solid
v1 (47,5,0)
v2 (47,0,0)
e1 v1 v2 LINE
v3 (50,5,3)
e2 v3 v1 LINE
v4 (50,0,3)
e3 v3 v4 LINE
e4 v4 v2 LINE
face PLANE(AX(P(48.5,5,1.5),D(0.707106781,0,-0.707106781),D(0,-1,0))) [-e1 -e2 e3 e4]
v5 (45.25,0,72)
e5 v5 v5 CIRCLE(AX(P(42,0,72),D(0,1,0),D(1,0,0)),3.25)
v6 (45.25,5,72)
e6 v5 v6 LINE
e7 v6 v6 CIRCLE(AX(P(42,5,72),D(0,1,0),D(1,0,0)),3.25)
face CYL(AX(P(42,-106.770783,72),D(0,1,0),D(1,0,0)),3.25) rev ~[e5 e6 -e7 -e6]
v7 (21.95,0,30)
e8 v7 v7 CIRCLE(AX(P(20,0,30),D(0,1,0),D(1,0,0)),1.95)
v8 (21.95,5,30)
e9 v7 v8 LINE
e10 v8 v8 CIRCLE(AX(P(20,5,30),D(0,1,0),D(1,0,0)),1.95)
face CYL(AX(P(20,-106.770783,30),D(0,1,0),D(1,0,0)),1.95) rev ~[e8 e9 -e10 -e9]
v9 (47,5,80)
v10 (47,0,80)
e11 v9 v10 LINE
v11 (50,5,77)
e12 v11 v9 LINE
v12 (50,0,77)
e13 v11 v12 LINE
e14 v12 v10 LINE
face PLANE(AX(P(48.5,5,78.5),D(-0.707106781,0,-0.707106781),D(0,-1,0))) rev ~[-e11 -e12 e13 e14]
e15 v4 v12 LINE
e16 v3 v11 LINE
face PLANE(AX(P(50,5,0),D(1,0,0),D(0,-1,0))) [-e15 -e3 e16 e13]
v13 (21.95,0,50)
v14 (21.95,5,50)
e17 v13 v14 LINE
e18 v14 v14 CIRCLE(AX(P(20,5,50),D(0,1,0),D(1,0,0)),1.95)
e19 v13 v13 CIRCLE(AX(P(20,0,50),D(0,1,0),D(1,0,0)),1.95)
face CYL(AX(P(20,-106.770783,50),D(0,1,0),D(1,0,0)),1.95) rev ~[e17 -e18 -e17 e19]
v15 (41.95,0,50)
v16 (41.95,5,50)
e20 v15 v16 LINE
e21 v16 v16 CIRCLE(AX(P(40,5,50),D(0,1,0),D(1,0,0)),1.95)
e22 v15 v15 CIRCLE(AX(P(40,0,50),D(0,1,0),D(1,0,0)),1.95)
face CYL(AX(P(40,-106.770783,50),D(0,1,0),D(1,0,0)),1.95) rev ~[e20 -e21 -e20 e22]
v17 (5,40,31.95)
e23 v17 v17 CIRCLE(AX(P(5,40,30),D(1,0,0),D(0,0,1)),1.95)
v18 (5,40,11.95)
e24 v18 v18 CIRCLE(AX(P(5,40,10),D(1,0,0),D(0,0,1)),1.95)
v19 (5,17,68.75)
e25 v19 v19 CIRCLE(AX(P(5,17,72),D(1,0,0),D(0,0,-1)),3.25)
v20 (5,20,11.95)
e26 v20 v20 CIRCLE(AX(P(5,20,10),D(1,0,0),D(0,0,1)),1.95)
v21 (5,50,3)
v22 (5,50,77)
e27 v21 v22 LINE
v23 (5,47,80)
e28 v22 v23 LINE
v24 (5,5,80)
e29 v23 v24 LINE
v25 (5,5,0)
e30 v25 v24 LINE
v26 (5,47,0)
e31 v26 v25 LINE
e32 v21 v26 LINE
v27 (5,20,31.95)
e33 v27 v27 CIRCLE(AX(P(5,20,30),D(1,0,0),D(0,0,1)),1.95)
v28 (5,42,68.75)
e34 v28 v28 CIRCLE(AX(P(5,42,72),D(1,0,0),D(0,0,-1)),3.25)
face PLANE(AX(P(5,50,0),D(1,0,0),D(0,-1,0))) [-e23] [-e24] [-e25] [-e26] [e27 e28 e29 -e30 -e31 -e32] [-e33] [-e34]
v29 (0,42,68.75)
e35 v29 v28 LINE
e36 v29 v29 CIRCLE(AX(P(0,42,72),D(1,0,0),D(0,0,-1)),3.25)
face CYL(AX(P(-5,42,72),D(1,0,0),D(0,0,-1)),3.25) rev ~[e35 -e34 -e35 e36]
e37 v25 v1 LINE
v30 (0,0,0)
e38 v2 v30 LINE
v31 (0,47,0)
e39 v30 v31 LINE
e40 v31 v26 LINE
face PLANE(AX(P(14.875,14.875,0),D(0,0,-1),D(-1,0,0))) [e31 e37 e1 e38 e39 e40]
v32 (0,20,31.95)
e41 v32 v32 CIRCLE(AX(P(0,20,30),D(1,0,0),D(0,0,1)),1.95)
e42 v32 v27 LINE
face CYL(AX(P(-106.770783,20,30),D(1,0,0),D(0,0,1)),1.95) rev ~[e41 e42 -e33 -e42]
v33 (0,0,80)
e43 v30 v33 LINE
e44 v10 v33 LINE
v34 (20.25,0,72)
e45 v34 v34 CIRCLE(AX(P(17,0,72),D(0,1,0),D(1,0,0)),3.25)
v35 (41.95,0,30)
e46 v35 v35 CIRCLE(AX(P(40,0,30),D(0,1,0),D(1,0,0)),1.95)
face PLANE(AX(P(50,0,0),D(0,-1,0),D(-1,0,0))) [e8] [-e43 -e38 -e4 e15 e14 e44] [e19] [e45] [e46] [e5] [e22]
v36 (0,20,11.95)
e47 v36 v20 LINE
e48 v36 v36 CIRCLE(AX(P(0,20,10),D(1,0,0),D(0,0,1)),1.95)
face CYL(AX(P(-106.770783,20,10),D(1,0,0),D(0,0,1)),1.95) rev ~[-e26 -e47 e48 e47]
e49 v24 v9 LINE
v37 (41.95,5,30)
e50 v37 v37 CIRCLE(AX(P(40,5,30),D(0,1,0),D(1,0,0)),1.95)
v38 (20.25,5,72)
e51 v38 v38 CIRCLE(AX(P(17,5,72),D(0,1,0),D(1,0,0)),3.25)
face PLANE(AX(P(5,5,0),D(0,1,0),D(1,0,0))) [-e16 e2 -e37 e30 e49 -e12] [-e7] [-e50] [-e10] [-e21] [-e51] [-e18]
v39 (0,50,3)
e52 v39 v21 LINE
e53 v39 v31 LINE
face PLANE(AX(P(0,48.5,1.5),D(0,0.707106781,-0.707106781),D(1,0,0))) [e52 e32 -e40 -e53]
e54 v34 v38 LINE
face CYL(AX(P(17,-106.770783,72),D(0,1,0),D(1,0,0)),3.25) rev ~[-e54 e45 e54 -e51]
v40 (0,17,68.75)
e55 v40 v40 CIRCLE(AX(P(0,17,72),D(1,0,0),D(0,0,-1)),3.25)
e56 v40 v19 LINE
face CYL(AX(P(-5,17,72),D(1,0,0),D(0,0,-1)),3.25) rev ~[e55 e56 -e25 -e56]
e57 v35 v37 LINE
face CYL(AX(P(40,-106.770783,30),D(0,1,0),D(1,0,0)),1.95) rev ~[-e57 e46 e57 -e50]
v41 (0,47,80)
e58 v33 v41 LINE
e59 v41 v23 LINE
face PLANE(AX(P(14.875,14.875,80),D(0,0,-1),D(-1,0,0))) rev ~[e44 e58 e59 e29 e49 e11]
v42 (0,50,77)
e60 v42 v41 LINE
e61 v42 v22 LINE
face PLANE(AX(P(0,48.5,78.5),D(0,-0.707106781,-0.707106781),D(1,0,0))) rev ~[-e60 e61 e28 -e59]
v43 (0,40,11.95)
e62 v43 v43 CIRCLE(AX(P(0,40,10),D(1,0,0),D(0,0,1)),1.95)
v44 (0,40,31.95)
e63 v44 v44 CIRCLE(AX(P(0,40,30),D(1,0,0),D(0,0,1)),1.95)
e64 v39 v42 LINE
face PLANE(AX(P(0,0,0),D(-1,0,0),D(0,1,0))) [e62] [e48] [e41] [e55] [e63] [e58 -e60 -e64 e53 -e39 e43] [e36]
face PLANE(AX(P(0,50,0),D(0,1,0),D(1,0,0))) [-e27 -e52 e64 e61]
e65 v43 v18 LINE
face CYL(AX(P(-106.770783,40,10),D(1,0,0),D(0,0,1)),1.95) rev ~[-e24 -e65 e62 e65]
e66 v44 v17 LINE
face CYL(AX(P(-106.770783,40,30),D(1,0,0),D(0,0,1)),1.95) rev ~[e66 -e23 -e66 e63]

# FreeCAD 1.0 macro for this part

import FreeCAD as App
import Part
import Sketcher


def edges_at(feature, points):
    """Names of the edges that pass closest to the given points."""
    edges = feature.Shape.Edges
    near = lambda p: min(range(len(edges)), key=lambda i: edges[i].distToShape(Part.Vertex(*p))[0])
    return sorted({f"Edge{near(p) + 1}" for p in points})


def add_polygon(sketch, points):
    """Adds a closed chain of lines whose ends are joined by coincident constraints."""
    first, n = sketch.GeometryCount, len(points)
    for a, b in zip(points, points[1:] + points[:1]):
        sketch.addGeometry(Part.LineSegment(App.Vector(*a, 0), App.Vector(*b, 0)), False)
    for i in range(n):
        sketch.addConstraint(Sketcher.Constraint("Coincident", first + i, 2, first + (i + 1) % n, 1))

doc = App.newDocument("Part")
body = doc.addObject("PartDesign::Body", "Body")

# Sketch on XY plane
sketch1 = doc.addObject("Sketcher::SketchObject", "Sketch")
body.addObject(sketch1)
sketch1.AttachmentSupport = (doc.XY_Plane, [""])
sketch1.MapMode = "FlatFace"
add_polygon(sketch1, [(0, 50), (0, 0), (50, 0), (50, 5), (5, 5), (5, 50)])  # lines 0-5
sketch1.addConstraint([
    Sketcher.Constraint("Vertical", 0),
    Sketcher.Constraint("Horizontal", 1),
    Sketcher.Constraint("Vertical", 2),
    Sketcher.Constraint("Horizontal", 3),
    Sketcher.Constraint("Vertical", 4),
    Sketcher.Constraint("Horizontal", 5),
    Sketcher.Constraint("Coincident", 0, 2, -1, 1),
    Sketcher.Constraint("Equal", 1, 0),
    Sketcher.Constraint("Equal", 5, 2),
    Sketcher.Constraint("DistanceX", 1, 1, 1, 2, 50.0),
    Sketcher.Constraint("DistanceX", 3, 2, 3, 1, 45.0),
])
pad1 = doc.addObject("PartDesign::Pad", "Pad")
body.addObject(pad1)
pad1.Profile = sketch1
pad1.Length = 80

# Sketch on XZ plane
sketch2 = doc.addObject("Sketcher::SketchObject", "Sketch001")
body.addObject(sketch2)
sketch2.AttachmentSupport = (doc.XZ_Plane, [""])
sketch2.MapMode = "FlatFace"
sketch2.addGeometry([
    Part.Circle(App.Vector(17, 72, 0), App.Vector(0, 0, 1), 3.25),
    Part.Circle(App.Vector(42, 72, 0), App.Vector(0, 0, 1), 3.25),
], False)
sketch2.addConstraint([
    Sketcher.Constraint("Equal", 0, 1),
    Sketcher.Constraint("Horizontal", 0, 3, 1, 3),
    Sketcher.Constraint("Diameter", 0, 6.5),
    Sketcher.Constraint("DistanceX", -1, 1, 0, 3, 17.0),
    Sketcher.Constraint("DistanceY", -1, 1, 0, 3, 72.0),
    Sketcher.Constraint("DistanceX", -1, 1, 1, 3, 42.0),
])
doc.recompute()
hole = doc.addObject("PartDesign::Hole", "Hole")
body.addObject(hole)
hole.Profile = sketch2
hole.ThreadType = "None"
hole.Diameter = 6.5
hole.DepthType = "ThroughAll"

# Sketch on YZ plane
sketch3 = doc.addObject("Sketcher::SketchObject", "Sketch002")
body.addObject(sketch3)
sketch3.AttachmentSupport = (doc.YZ_Plane, [""])
sketch3.MapMode = "FlatFace"
sketch3.addGeometry([
    Part.Circle(App.Vector(42, 72, 0), App.Vector(0, 0, 1), 3.25),
    Part.Circle(App.Vector(17, 72, 0), App.Vector(0, 0, 1), 3.25),
], False)
sketch3.addConstraint([
    Sketcher.Constraint("Equal", 0, 1),
    Sketcher.Constraint("Horizontal", 0, 3, 1, 3),
    Sketcher.Constraint("Diameter", 0, 6.5),
    Sketcher.Constraint("DistanceX", -1, 1, 0, 3, 42.0),
    Sketcher.Constraint("DistanceY", -1, 1, 0, 3, 72.0),
    Sketcher.Constraint("DistanceX", -1, 1, 1, 3, 17.0),
])
doc.recompute()
hole2 = doc.addObject("PartDesign::Hole", "Hole001")
body.addObject(hole2)
hole2.Profile = sketch3
hole2.ThreadType = "None"
hole2.Diameter = 6.5
hole2.DepthType = "Dimension"
hole2.Depth = 5
hole2.DrillPoint = "Angled"
hole2.DrillPointAngle = 118
hole2.Reversed = True
doc.recompute()

chamfer = doc.addObject("PartDesign::Chamfer", "Chamfer")
body.addObject(chamfer)
chamfer.Base = (hole2, edges_at(hole2, [
    (2.5, 50, 80),
    (2.5, 50, 0),
    (50, 2.5, 80),
    (50, 2.5, 0),
]))
chamfer.Size = 3

# Sketch on YZ plane
sketch4 = doc.addObject("Sketcher::SketchObject", "Sketch003")
body.addObject(sketch4)
sketch4.AttachmentSupport = (doc.YZ_Plane, [""])
sketch4.MapMode = "FlatFace"
sketch4.addGeometry([
    Part.Circle(App.Vector(40, 10, 0), App.Vector(0, 0, 1), 1.95),
    Part.Circle(App.Vector(40, 30, 0), App.Vector(0, 0, 1), 1.95),
    Part.Circle(App.Vector(20, 30, 0), App.Vector(0, 0, 1), 1.95),
    Part.Circle(App.Vector(20, 10, 0), App.Vector(0, 0, 1), 1.95),
], False)
sketch4.addConstraint([
    Sketcher.Constraint("Equal", 0, 1),
    Sketcher.Constraint("Equal", 1, 2),
    Sketcher.Constraint("Equal", 2, 3),
    Sketcher.Constraint("Horizontal", 1, 3, 2, 3),
    Sketcher.Constraint("Horizontal", 0, 3, 3, 3),
    Sketcher.Constraint("Vertical", 0, 3, 1, 3),
    Sketcher.Constraint("Vertical", 2, 3, 3, 3),
    Sketcher.Constraint("Diameter", 0, 3.9),
    Sketcher.Constraint("DistanceX", -1, 1, 0, 3, 40.0),
    Sketcher.Constraint("DistanceY", -1, 1, 0, 3, 10.0),
    Sketcher.Constraint("DistanceY", -1, 1, 1, 3, 30.0),
    Sketcher.Constraint("DistanceX", -1, 1, 2, 3, 20.0),
])
doc.recompute()
hole3 = doc.addObject("PartDesign::Hole", "Hole002")
body.addObject(hole3)
hole3.Profile = sketch4
hole3.ThreadType = "None"
hole3.Diameter = 3.9
hole3.DepthType = "ThroughAll"
hole3.Reversed = True

# Sketch on XZ plane
sketch5 = doc.addObject("Sketcher::SketchObject", "Sketch004")
body.addObject(sketch5)
sketch5.AttachmentSupport = (doc.XZ_Plane, [""])
sketch5.MapMode = "FlatFace"
sketch5.addGeometry([
    Part.Circle(App.Vector(20, 50, 0), App.Vector(0, 0, 1), 1.95),
    Part.Circle(App.Vector(40, 50, 0), App.Vector(0, 0, 1), 1.95),
    Part.Circle(App.Vector(40, 30, 0), App.Vector(0, 0, 1), 1.95),
    Part.Circle(App.Vector(20, 30, 0), App.Vector(0, 0, 1), 1.95),
], False)
sketch5.addConstraint([
    Sketcher.Constraint("Equal", 0, 1),
    Sketcher.Constraint("Equal", 1, 2),
    Sketcher.Constraint("Equal", 2, 3),
    Sketcher.Constraint("Horizontal", 0, 3, 1, 3),
    Sketcher.Constraint("Horizontal", 2, 3, 3, 3),
    Sketcher.Constraint("Vertical", 1, 3, 2, 3),
    Sketcher.Constraint("Vertical", 0, 3, 3, 3),
    Sketcher.Constraint("Diameter", 0, 3.9),
    Sketcher.Constraint("DistanceX", -1, 1, 0, 3, 20.0),
    Sketcher.Constraint("DistanceY", -1, 1, 0, 3, 50.0),
    Sketcher.Constraint("DistanceX", -1, 1, 1, 3, 40.0),
    Sketcher.Constraint("DistanceY", -1, 1, 2, 3, 30.0),
])
doc.recompute()
hole4 = doc.addObject("PartDesign::Hole", "Hole003")
body.addObject(hole4)
hole4.Profile = sketch5
hole4.ThreadType = "None"
hole4.Diameter = 3.9
hole4.DepthType = "ThroughAll"

doc.recompute()
